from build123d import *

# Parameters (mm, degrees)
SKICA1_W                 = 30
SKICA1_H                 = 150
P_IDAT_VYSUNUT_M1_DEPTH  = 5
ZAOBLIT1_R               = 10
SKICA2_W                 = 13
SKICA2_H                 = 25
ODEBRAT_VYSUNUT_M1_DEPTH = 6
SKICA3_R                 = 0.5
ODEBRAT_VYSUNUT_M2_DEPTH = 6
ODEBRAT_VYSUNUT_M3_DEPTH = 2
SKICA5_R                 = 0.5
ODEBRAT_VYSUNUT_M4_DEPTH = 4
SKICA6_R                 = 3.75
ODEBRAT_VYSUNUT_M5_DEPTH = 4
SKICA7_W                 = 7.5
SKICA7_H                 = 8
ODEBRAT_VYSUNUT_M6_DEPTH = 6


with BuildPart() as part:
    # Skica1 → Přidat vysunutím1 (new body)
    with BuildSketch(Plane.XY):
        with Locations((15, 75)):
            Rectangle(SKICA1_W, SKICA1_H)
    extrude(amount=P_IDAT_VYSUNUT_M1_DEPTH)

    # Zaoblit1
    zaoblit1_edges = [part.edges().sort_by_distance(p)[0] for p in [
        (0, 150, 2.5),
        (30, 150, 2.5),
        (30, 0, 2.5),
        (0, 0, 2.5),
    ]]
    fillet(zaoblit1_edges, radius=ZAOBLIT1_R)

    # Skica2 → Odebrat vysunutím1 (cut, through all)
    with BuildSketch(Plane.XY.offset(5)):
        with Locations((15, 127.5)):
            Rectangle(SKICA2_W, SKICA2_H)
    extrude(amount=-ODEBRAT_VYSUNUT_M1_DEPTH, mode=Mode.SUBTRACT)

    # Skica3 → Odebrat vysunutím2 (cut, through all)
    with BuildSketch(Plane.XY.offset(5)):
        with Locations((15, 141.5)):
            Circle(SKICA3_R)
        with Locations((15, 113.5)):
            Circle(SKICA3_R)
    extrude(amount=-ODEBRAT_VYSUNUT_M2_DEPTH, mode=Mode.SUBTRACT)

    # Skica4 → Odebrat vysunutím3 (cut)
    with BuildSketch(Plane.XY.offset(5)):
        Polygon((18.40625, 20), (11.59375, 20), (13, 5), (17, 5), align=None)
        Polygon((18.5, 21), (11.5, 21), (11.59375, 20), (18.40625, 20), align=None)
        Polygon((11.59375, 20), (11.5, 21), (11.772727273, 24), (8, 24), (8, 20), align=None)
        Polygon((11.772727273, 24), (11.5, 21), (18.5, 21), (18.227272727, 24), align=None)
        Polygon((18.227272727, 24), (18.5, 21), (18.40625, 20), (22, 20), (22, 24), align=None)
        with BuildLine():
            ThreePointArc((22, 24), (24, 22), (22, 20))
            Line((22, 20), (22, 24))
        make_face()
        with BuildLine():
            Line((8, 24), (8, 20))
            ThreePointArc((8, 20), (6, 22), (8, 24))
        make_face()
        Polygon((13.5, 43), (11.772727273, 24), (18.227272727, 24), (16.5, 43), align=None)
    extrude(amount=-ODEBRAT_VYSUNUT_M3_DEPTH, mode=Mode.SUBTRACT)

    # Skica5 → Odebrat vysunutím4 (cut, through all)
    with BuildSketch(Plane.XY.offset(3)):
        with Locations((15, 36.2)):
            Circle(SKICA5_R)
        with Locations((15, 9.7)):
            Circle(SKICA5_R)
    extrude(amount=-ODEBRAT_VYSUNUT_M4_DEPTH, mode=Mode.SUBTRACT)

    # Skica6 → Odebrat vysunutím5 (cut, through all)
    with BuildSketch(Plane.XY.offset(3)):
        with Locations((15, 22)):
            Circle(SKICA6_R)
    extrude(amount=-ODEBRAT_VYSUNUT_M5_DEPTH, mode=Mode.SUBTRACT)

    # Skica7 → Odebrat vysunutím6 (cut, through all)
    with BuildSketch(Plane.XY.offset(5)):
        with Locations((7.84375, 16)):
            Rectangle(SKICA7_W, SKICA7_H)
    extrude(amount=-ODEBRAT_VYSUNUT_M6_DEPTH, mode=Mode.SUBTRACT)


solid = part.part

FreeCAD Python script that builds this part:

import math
import FreeCAD as App
import Part
import Sketcher
from FreeCAD import Vector


def edges_at(feature, points):
    """Names of the edges that pass closest to the given points."""
    edges = feature.Shape.Edges
    near = lambda p: min(range(len(edges)), key=lambda i: edges[i].distToShape(Part.Vertex(*p))[0])
    return sorted({f"Edge{near(p) + 1}" for p in points})

doc = App.newDocument("Part")
body = doc.addObject("PartDesign::Body", "Body")

sketch1 = body.newObject("Sketcher::SketchObject", "Sketch")
sketch1.AttachmentSupport = (doc.getObject("XY_Plane"), [""])
sketch1.MapMode = "FlatFace"
sketch1.addGeometry([
    Part.LineSegment(Vector(0, 150, 0), Vector(0, 0, 0)),
    Part.LineSegment(Vector(0, 0, 0), Vector(30, 0, 0)),
    Part.LineSegment(Vector(30, 0, 0), Vector(30, 150, 0)),
    Part.LineSegment(Vector(30, 150, 0), Vector(0, 150, 0)),
], False)
sketch1.addConstraint([
    Sketcher.Constraint("Coincident", 0, 2, 1, 1),
    Sketcher.Constraint("Coincident", 1, 2, 2, 1),
    Sketcher.Constraint("Coincident", 2, 2, 3, 1),
    Sketcher.Constraint("Coincident", 3, 2, 0, 1),
    Sketcher.Constraint("Vertical", 0),
    Sketcher.Constraint("Horizontal", 1),
    Sketcher.Constraint("Vertical", 2),
    Sketcher.Constraint("Horizontal", 3),
    Sketcher.Constraint("Coincident", 0, 2, -1, 1),
    Sketcher.Constraint("DistanceX", 1, 1, 1, 2, 30.0),
    Sketcher.Constraint("DistanceY", 0, 2, 0, 1, 150.0),
])
pad1 = body.newObject("PartDesign::Pad", "Pad")
pad1.Profile = sketch1
pad1.Length = 5
doc.recompute()

fillet = body.newObject("PartDesign::Fillet", "Fillet")
fillet.Base = (pad1, edges_at(pad1, [
    (0, 150, 2.5),
    (30, 150, 2.5),
    (30, 0, 2.5),
    (0, 0, 2.5),
]))
fillet.Radius = 10

sketch2 = body.newObject("Sketcher::SketchObject", "Sketch001")
sketch2.AttachmentSupport = (doc.getObject("XY_Plane"), [""])
sketch2.MapMode = "FlatFace"
sketch2.AttachmentOffset = App.Placement(Vector(0, 0, 5), App.Rotation())
sketch2.addGeometry([
    Part.LineSegment(Vector(8.5, 140, 0), Vector(8.5, 115, 0)),
    Part.LineSegment(Vector(8.5, 115, 0), Vector(21.5, 115, 0)),
    Part.LineSegment(Vector(21.5, 115, 0), Vector(21.5, 140, 0)),
    Part.LineSegment(Vector(21.5, 140, 0), Vector(8.5, 140, 0)),
], False)
sketch2.addConstraint([
    Sketcher.Constraint("Coincident", 0, 2, 1, 1),
    Sketcher.Constraint("Coincident", 1, 2, 2, 1),
    Sketcher.Constraint("Coincident", 2, 2, 3, 1),
    Sketcher.Constraint("Coincident", 3, 2, 0, 1),
    Sketcher.Constraint("Vertical", 0),
    Sketcher.Constraint("Horizontal", 1),
    Sketcher.Constraint("Vertical", 2),
    Sketcher.Constraint("Horizontal", 3),
    Sketcher.Constraint("DistanceX", 1, 1, 1, 2, 13.0),
    Sketcher.Constraint("DistanceY", 0, 2, 0, 1, 25.0),
    Sketcher.Constraint("DistanceY", -1, 1, 0, 2, 115.0),
    Sketcher.Constraint("DistanceX", -1, 1, 0, 2, 8.5),
])
pocket1 = body.newObject("PartDesign::Pocket", "Pocket")
pocket1.Profile = sketch2
pocket1.Type = "ThroughAll"

sketch3 = body.newObject("Sketcher::SketchObject", "Sketch002")
sketch3.AttachmentSupport = (doc.getObject("XY_Plane"), [""])
sketch3.MapMode = "FlatFace"
sketch3.AttachmentOffset = App.Placement(Vector(0, 0, 5), App.Rotation())
sketch3.addGeometry([
    Part.Circle(Vector(15, 141.5, 0), Vector(0, 0, 1), 0.5),
    Part.Circle(Vector(15, 113.5, 0), Vector(0, 0, 1), 0.5),
], False)
sketch3.addConstraint([
    Sketcher.Constraint("Equal", 0, 1),
    Sketcher.Constraint("Vertical", 0, 3, 1, 3),
    Sketcher.Constraint("Diameter", 0, 1.0),
    Sketcher.Constraint("DistanceX", -1, 1, 0, 3, 15.0),
    Sketcher.Constraint("DistanceY", 1, 3, 0, 3, 28.0),
    Sketcher.Constraint("DistanceY", -1, 1, 0, 3, 141.5),
])
pocket2 = body.newObject("PartDesign::Pocket", "Pocket001")
pocket2.Profile = sketch3
pocket2.Type = "ThroughAll"

sketch4 = body.newObject("Sketcher::SketchObject", "Sketch003")
sketch4.AttachmentSupport = (doc.getObject("XY_Plane"), [""])
sketch4.MapMode = "FlatFace"
sketch4.AttachmentOffset = App.Placement(Vector(0, 0, 5), App.Rotation())
sketch4.addGeometry([
    Part.LineSegment(Vector(13, 5, 0), Vector(17, 5, 0)),
    Part.LineSegment(Vector(17, 5, 0), Vector(18.40625, 20, 0)),
    Part.LineSegment(Vector(18.40625, 20, 0), Vector(22, 20, 0)),
    Part.ArcOfCircle(Part.Circle(Vector(22, 22, 0), Vector(0, 0, 1), 2), math.radians(-90), math.radians(90)),
    Part.LineSegment(Vector(22, 24, 0), Vector(18.227273, 24, 0)),
    Part.LineSegment(Vector(18.227273, 24, 0), Vector(16.5, 43, 0)),
    Part.LineSegment(Vector(16.5, 43, 0), Vector(13.5, 43, 0)),
    Part.LineSegment(Vector(13.5, 43, 0), Vector(11.772727, 24, 0)),
    Part.LineSegment(Vector(11.772727, 24, 0), Vector(8, 24, 0)),
    Part.ArcOfCircle(Part.Circle(Vector(8, 22, 0), Vector(0, 0, 1), 2), math.radians(90), math.radians(270)),
    Part.LineSegment(Vector(8, 20, 0), Vector(11.59375, 20, 0)),
    Part.LineSegment(Vector(11.59375, 20, 0), Vector(13, 5, 0)),
], False)
sketch4.addConstraint([
    Sketcher.Constraint("Coincident", 0, 2, 1, 1),
    Sketcher.Constraint("Coincident", 1, 2, 2, 1),
    Sketcher.Constraint("Tangent", 2, 2, 3, 1),
    Sketcher.Constraint("Tangent", 3, 2, 4, 1),
    Sketcher.Constraint("Coincident", 4, 2, 5, 1),
    Sketcher.Constraint("Coincident", 5, 2, 6, 1),
    Sketcher.Constraint("Coincident", 6, 2, 7, 1),
    Sketcher.Constraint("Coincident", 7, 2, 8, 1),
    Sketcher.Constraint("Tangent", 8, 2, 9, 1),
    Sketcher.Constraint("Tangent", 9, 2, 10, 1),
    Sketcher.Constraint("Coincident", 10, 2, 11, 1),
    Sketcher.Constraint("Coincident", 11, 2, 0, 1),
    Sketcher.Constraint("Horizontal", 0),
    Sketcher.Constraint("Horizontal", 2),
    Sketcher.Constraint("Horizontal", 4),
    Sketcher.Constraint("Horizontal", 6),
    Sketcher.Constraint("Horizontal", 8),
    Sketcher.Constraint("Horizontal", 10),
    Sketcher.Constraint("Equal", 3, 9),
    Sketcher.Constraint("Horizontal", 3, 3, 9, 3),
    Sketcher.Constraint("Equal", 4, 8),
    Sketcher.Constraint("Equal", 2, 10),
    Sketcher.Constraint("Equal", 5, 7),
    Sketcher.Constraint("Equal", 1, 11),
    Sketcher.Constraint("Radius", 3, 2.0),
    Sketcher.Constraint("DistanceX", 0, 1, 0, 2, 4.0),
    Sketcher.Constraint("DistanceX", 6, 2, 6, 1, 3.0),
    Sketcher.Constraint("DistanceX", -1, 1, 3, 3, 22.0),
    Sketcher.Constraint("DistanceY", -1, 1, 3, 3, 22.0),
    Sketcher.Constraint("DistanceX", -1, 1, 9, 3, 8.0),
    Sketcher.Constraint("DistanceY", -1, 1, 0, 2, 5.0),
    Sketcher.Constraint("DistanceY", -1, 1, 5, 2, 43.0),
    Sketcher.Constraint("DistanceX", 2, 1, 2, 2, 3.59375),
    Sketcher.Constraint("Distance", 5, 19.078351),
])
pocket3 = body.newObject("PartDesign::Pocket", "Pocket002")
pocket3.Profile = sketch4
pocket3.Length = 2

sketch5 = body.newObject("Sketcher::SketchObject", "Sketch004")
sketch5.AttachmentSupport = (doc.getObject("XY_Plane"), [""])
sketch5.MapMode = "FlatFace"
sketch5.AttachmentOffset = App.Placement(Vector(0, 0, 3), App.Rotation())
sketch5.addGeometry([
    Part.Circle(Vector(15, 36.2, 0), Vector(0, 0, 1), 0.5),
    Part.Circle(Vector(15, 9.7, 0), Vector(0, 0, 1), 0.5),
], False)
sketch5.addConstraint([
    Sketcher.Constraint("Equal", 0, 1),
    Sketcher.Constraint("Vertical", 0, 3, 1, 3),
    Sketcher.Constraint("Diameter", 0, 1.0),
    Sketcher.Constraint("DistanceX", -1, 1, 0, 3, 15.0),
    Sketcher.Constraint("DistanceY", -1, 1, 0, 3, 36.2),
    Sketcher.Constraint("DistanceY", -1, 1, 1, 3, 9.7),
])
pocket4 = body.newObject("PartDesign::Pocket", "Pocket003")
pocket4.Profile = sketch5
pocket4.Type = "ThroughAll"

sketch6 = body.newObject("Sketcher::SketchObject", "Sketch005")
sketch6.AttachmentSupport = (doc.getObject("XY_Plane"), [""])
sketch6.MapMode = "FlatFace"
sketch6.AttachmentOffset = App.Placement(Vector(0, 0, 3), App.Rotation())
sketch6.addGeometry(Part.Circle(Vector(15, 22, 0), Vector(0, 0, 1), 3.75), False)
sketch6.addConstraint([
    Sketcher.Constraint("Diameter", 0, 7.5),
    Sketcher.Constraint("DistanceX", -1, 1, 0, 3, 15.0),
    Sketcher.Constraint("DistanceY", -1, 1, 0, 3, 22.0),
])
pocket5 = body.newObject("PartDesign::Pocket", "Pocket004")
pocket5.Profile = sketch6
pocket5.Type = "ThroughAll"

sketch7 = body.newObject("Sketcher::SketchObject", "Sketch006")
sketch7.AttachmentSupport = (doc.getObject("XY_Plane"), [""])
sketch7.MapMode = "FlatFace"
sketch7.AttachmentOffset = App.Placement(Vector(0, 0, 5), App.Rotation())
sketch7.addGeometry([
    Part.LineSegment(Vector(4.09375, 20, 0), Vector(4.09375, 12, 0)),
    Part.LineSegment(Vector(4.09375, 12, 0), Vector(11.59375, 12, 0)),
    Part.LineSegment(Vector(11.59375, 12, 0), Vector(11.59375, 20, 0)),
    Part.LineSegment(Vector(11.59375, 20, 0), Vector(4.09375, 20, 0)),
], False)
sketch7.addConstraint([
    Sketcher.Constraint("Coincident", 0, 2, 1, 1),
    Sketcher.Constraint("Coincident", 1, 2, 2, 1),
    Sketcher.Constraint("Coincident", 2, 2, 3, 1),
    Sketcher.Constraint("Coincident", 3, 2, 0, 1),
    Sketcher.Constraint("Vertical", 0),
    Sketcher.Constraint("Horizontal", 1),
    Sketcher.Constraint("Vertical", 2),
    Sketcher.Constraint("Horizontal", 3),
    Sketcher.Constraint("DistanceY", 0, 2, 0, 1, 8.0),
    Sketcher.Constraint("DistanceX", 1, 1, 1, 2, 7.5),
    Sketcher.Constraint("DistanceY", -1, 1, 0, 2, 12.0),
    Sketcher.Constraint("DistanceX", -1, 1, 0, 2, 4.09375),
])
pocket6 = body.newObject("PartDesign::Pocket", "Pocket005")
pocket6.Profile = sketch7
pocket6.Type = "ThroughAll"

doc.recompute()
